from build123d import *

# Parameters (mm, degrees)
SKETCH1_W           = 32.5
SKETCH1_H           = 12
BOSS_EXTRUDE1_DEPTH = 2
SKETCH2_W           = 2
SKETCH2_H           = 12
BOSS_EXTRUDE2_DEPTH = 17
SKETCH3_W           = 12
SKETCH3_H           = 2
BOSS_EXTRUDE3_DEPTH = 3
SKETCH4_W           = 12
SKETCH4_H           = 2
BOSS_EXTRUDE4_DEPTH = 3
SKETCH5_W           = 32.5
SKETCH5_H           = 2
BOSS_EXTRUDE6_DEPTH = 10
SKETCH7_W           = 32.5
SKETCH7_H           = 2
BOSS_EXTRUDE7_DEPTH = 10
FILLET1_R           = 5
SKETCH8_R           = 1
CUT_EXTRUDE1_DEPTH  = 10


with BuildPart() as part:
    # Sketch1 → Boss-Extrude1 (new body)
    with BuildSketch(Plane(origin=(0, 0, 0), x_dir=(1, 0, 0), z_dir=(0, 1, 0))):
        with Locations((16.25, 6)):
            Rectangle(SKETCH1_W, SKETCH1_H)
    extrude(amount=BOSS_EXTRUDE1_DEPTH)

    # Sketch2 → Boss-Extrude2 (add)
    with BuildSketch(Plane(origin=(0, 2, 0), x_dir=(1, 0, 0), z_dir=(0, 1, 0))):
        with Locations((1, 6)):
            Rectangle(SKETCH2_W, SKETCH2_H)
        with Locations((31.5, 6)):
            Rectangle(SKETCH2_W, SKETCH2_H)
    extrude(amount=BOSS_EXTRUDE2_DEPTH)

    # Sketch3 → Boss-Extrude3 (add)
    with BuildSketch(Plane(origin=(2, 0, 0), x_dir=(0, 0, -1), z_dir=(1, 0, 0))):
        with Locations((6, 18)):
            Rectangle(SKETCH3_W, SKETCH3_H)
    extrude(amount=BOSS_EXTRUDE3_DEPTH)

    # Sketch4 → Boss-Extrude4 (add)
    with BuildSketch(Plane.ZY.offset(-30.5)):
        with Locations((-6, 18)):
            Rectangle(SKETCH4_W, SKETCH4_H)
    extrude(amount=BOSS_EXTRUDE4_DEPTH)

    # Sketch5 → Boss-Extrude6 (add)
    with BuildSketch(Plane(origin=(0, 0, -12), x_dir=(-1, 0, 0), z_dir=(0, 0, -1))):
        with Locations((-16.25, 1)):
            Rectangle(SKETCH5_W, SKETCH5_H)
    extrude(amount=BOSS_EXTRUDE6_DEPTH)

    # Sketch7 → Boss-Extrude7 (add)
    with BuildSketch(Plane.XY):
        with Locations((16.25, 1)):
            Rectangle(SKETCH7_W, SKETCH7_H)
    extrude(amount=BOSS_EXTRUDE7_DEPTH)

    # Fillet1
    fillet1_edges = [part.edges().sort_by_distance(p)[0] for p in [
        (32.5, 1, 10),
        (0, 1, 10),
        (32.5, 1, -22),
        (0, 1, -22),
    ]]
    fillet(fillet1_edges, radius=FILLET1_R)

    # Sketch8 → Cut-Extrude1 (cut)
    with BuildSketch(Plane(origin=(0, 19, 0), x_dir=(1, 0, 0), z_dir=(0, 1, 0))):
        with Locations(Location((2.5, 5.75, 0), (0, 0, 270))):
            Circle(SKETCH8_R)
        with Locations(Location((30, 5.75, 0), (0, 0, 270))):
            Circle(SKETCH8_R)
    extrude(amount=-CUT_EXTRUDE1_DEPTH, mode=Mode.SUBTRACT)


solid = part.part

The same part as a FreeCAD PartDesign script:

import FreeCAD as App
import Part
import Sketcher
Q = App.Units.Quantity


def edges_at(feature, points):
    """Names of the edges that pass closest to the given points."""
    edges = feature.Shape.Edges
    near = lambda p: min(range(len(edges)), key=lambda i: edges[i].distToShape(Part.Vertex(*p))[0])
    return sorted({f"Edge{near(p) + 1}" for p in points})


def add_polygon(sketch, points):
    """Adds a closed chain of lines whose ends are joined by coincident constraints."""
    first, n = sketch.GeometryCount, len(points)
    for a, b in zip(points, points[1:] + points[:1]):
        sketch.addGeometry(Part.LineSegment(App.Vector(*a, 0), App.Vector(*b, 0)), False)
    for i in range(n):
        sketch.addConstraint(Sketcher.Constraint("Coincident", first + i, 2, first + (i + 1) % n, 1))

doc = App.newDocument("Part")
body = doc.addObject("PartDesign::Body", "Body")

sketch1 = body.newObject("Sketcher::SketchObject", "Sketch")
sketch1.AttachmentSupport = (doc.getObject("XZ_Plane"), [""])
sketch1.MapMode = "FlatFace"
add_polygon(sketch1, [(0, -12), (0, 0), (32, 0), (32, -12)])
sketch1.addConstraint([
    Sketcher.Constraint("Vertical", 0),
    Sketcher.Constraint("Horizontal", 1),
    Sketcher.Constraint("Vertical", 2),
    Sketcher.Constraint("Horizontal", 3),
    Sketcher.Constraint("Coincident", 0, 2, -1, 1),
    Sketcher.Constraint("DistanceY", 0, 1, 0, 2, Q("12 mm")),
    Sketcher.Constraint("DistanceX", 1, 1, 1, 2, Q("32.5 mm")),
])
pad1 = body.newObject("PartDesign::Pad", "Pad")
pad1.Profile = sketch1
pad1.Length = 2
pad1.Reversed = True

sketch2 = body.newObject("Sketcher::SketchObject", "Sketch001")
sketch2.AttachmentSupport = (doc.getObject("XZ_Plane"), [""])
sketch2.MapMode = "FlatFace"
sketch2.AttachmentOffset = App.Placement(App.Vector(0, 0, -2), App.Rotation())
add_polygon(sketch2, [(0, -12), (0, 0), (2, 0), (2, -12)])
add_polygon(sketch2, [(30.5, -12), (30.5, 0), (32.5, 0), (32.5, -12)])
sketch2.addConstraint([
    Sketcher.Constraint("Vertical", 0),
    Sketcher.Constraint("Horizontal", 1),
    Sketcher.Constraint("Vertical", 2),
    Sketcher.Constraint("Horizontal", 3),
    Sketcher.Constraint("Vertical", 4),
    Sketcher.Constraint("Horizontal", 5),
    Sketcher.Constraint("Vertical", 6),
    Sketcher.Constraint("Horizontal", 7),
    Sketcher.Constraint("Coincident", 0, 2, -1, 1),
    Sketcher.Constraint("PointOnObject", 4, 2, -1),
    Sketcher.Constraint("Horizontal", 3, 2, 6, 2),
    Sketcher.Constraint("Equal", 3, 5),
    Sketcher.Constraint("DistanceX", 1, 1, 1, 2, Q("2 mm")),
    Sketcher.Constraint("DistanceY", 0, 1, 0, 2, Q("12 mm")),
    Sketcher.Constraint("DistanceX", -1, 1, 4, 2, Q("30.5 mm")),
])
pad2 = body.newObject("PartDesign::Pad", "Pad001")
pad2.Profile = sketch2
pad2.Length = 17
pad2.Reversed = True

sketch3 = body.newObject("Sketcher::SketchObject", "Sketch002")
sketch3.AttachmentSupport = (doc.getObject("YZ_Plane"), [""])
sketch3.MapMode = "FlatFace"
sketch3.AttachmentOffset = App.Placement(App.Vector(0, 0, 2), App.Rotation())
add_polygon(sketch3, [(19, 0), (17, 0), (17, -12), (19, -12)])
sketch3.addConstraint([
    Sketcher.Constraint("Horizontal", 0),
    Sketcher.Constraint("Vertical", 1),
    Sketcher.Constraint("Horizontal", 2),
    Sketcher.Constraint("Vertical", 3),
    Sketcher.Constraint("PointOnObject", 0, 2, -1),
    Sketcher.Constraint("DistanceX", 0, 2, 0, 1, Q("2 mm")),
    Sketcher.Constraint("DistanceY", 1, 2, 1, 1, Q("12 mm")),
    Sketcher.Constraint("DistanceX", -1, 1, 0, 2, Q("17 mm")),
])
pad3 = body.newObject("PartDesign::Pad", "Pad002")
pad3.Profile = sketch3
pad3.Length = 3

sketch4 = body.newObject("Sketcher::SketchObject", "Sketch003")
sketch4.AttachmentSupport = (doc.getObject("YZ_Plane"), [""])
sketch4.MapMode = "FlatFace"
sketch4.AttachmentOffset = App.Placement(App.Vector(0, 0, 30.5), App.Rotation())
add_polygon(sketch4, [(19, -12), (17, -12), (17, 0), (19, 0)])
sketch4.addConstraint([
    Sketcher.Constraint("Horizontal", 0),
    Sketcher.Constraint("Vertical", 1),
    Sketcher.Constraint("Horizontal", 2),
    Sketcher.Constraint("Vertical", 3),
    Sketcher.Constraint("PointOnObject", 1, 2, -1),
    Sketcher.Constraint("DistanceX", 0, 2, 0, 1, Q("2 mm")),
    Sketcher.Constraint("DistanceY", 1, 1, 1, 2, Q("12 mm")),
    Sketcher.Constraint("DistanceX", -1, 1, 0, 2, Q("17 mm")),
])
pad4 = body.newObject("PartDesign::Pad", "Pad003")
pad4.Profile = sketch4
pad4.Length = 3
pad4.Reversed = True

sketch5 = body.newObject("Sketcher::SketchObject", "Sketch004")
sketch5.AttachmentSupport = (doc.getObject("XY_Plane"), [""])
sketch5.MapMode = "FlatFace"
sketch5.AttachmentOffset = App.Placement(App.Vector(0, 0, -12), App.Rotation())
add_polygon(sketch5, [(32.5, 2), (32.5, 0), (0, 0), (0, 2)])
sketch5.addConstraint([
    Sketcher.Constraint("Vertical", 0),
    Sketcher.Constraint("Horizontal", 1),
    Sketcher.Constraint("Vertical", 2),
    Sketcher.Constraint("Horizontal", 3),
    Sketcher.Constraint("Coincident", 1, 2, -1, 1),
    Sketcher.Constraint("DistanceY", 0, 2, 0, 1, Q("2 mm")),
    Sketcher.Constraint("DistanceX", 1, 2, 1, 1, Q("32.5 mm")),
])
pad5 = body.newObject("PartDesign::Pad", "Pad004")
pad5.Profile = sketch5
pad5.Length = 10
pad5.Reversed = True

sketch6 = body.newObject("Sketcher::SketchObject", "Sketch005")
sketch6.AttachmentSupport = (doc.getObject("XY_Plane"), [""])
sketch6.MapMode = "FlatFace"
add_polygon(sketch6, [(0, 2), (0, 0), (32.5, 0), (32.5, 2)])
sketch6.addConstraint([
    Sketcher.Constraint("Vertical", 0),
    Sketcher.Constraint("Horizontal", 1),
    Sketcher.Constraint("Vertical", 2),
    Sketcher.Constraint("Horizontal", 3),
    Sketcher.Constraint("Coincident", 0, 2, -1, 1),
    Sketcher.Constraint("DistanceY", 0, 2, 0, 1, Q("2 mm")),
    Sketcher.Constraint("DistanceX", 1, 1, 1, 2, Q("32.5 mm")),
])
pad6 = body.newObject("PartDesign::Pad", "Pad005")
pad6.Profile = sketch6
pad6.Length = 10
doc.recompute()

fillet = body.newObject("PartDesign::Fillet", "Fillet")
fillet.Base = (pad6, edges_at(pad6, [
    (32.5, 1, 10),
    (0, 1, 10),
    (32.5, 1, -22),
    (0, 1, -22),
]))
fillet.Radius = 5

sketch7 = body.newObject("Sketcher::SketchObject", "Sketch006")
sketch7.AttachmentSupport = (doc.getObject("XZ_Plane"), [""])
sketch7.MapMode = "FlatFace"
sketch7.AttachmentOffset = App.Placement(App.Vector(0, 0, -19), App.Rotation())
sketch7.addGeometry([
    Part.Circle(App.Vector(2.5, -5.8, 0), App.Vector(0, 0, 1), 1),
    Part.Circle(App.Vector(30, -5.8, 0), App.Vector(0, 0, 1), 1),
], False)
sketch7.addConstraint([
    Sketcher.Constraint("Equal", 0, 1),
    Sketcher.Constraint("Horizontal", 0, 3, 1, 3),
    Sketcher.Constraint("Diameter", 0, Q("2 mm")),
    Sketcher.Constraint("DistanceX", -1, 1, 1, 3, Q("30 mm")),
    Sketcher.Constraint("DistanceX", -1, 1, 0, 3, Q("2.5 mm")),
    Sketcher.Constraint("DistanceY", 0, 3, -1, 1, Q("5.75 mm")),
])
pocket1 = body.newObject("PartDesign::Pocket", "Pocket")
pocket1.Profile = sketch7
pocket1.Length = 10
pocket1.Reversed = True

doc.recompute()
